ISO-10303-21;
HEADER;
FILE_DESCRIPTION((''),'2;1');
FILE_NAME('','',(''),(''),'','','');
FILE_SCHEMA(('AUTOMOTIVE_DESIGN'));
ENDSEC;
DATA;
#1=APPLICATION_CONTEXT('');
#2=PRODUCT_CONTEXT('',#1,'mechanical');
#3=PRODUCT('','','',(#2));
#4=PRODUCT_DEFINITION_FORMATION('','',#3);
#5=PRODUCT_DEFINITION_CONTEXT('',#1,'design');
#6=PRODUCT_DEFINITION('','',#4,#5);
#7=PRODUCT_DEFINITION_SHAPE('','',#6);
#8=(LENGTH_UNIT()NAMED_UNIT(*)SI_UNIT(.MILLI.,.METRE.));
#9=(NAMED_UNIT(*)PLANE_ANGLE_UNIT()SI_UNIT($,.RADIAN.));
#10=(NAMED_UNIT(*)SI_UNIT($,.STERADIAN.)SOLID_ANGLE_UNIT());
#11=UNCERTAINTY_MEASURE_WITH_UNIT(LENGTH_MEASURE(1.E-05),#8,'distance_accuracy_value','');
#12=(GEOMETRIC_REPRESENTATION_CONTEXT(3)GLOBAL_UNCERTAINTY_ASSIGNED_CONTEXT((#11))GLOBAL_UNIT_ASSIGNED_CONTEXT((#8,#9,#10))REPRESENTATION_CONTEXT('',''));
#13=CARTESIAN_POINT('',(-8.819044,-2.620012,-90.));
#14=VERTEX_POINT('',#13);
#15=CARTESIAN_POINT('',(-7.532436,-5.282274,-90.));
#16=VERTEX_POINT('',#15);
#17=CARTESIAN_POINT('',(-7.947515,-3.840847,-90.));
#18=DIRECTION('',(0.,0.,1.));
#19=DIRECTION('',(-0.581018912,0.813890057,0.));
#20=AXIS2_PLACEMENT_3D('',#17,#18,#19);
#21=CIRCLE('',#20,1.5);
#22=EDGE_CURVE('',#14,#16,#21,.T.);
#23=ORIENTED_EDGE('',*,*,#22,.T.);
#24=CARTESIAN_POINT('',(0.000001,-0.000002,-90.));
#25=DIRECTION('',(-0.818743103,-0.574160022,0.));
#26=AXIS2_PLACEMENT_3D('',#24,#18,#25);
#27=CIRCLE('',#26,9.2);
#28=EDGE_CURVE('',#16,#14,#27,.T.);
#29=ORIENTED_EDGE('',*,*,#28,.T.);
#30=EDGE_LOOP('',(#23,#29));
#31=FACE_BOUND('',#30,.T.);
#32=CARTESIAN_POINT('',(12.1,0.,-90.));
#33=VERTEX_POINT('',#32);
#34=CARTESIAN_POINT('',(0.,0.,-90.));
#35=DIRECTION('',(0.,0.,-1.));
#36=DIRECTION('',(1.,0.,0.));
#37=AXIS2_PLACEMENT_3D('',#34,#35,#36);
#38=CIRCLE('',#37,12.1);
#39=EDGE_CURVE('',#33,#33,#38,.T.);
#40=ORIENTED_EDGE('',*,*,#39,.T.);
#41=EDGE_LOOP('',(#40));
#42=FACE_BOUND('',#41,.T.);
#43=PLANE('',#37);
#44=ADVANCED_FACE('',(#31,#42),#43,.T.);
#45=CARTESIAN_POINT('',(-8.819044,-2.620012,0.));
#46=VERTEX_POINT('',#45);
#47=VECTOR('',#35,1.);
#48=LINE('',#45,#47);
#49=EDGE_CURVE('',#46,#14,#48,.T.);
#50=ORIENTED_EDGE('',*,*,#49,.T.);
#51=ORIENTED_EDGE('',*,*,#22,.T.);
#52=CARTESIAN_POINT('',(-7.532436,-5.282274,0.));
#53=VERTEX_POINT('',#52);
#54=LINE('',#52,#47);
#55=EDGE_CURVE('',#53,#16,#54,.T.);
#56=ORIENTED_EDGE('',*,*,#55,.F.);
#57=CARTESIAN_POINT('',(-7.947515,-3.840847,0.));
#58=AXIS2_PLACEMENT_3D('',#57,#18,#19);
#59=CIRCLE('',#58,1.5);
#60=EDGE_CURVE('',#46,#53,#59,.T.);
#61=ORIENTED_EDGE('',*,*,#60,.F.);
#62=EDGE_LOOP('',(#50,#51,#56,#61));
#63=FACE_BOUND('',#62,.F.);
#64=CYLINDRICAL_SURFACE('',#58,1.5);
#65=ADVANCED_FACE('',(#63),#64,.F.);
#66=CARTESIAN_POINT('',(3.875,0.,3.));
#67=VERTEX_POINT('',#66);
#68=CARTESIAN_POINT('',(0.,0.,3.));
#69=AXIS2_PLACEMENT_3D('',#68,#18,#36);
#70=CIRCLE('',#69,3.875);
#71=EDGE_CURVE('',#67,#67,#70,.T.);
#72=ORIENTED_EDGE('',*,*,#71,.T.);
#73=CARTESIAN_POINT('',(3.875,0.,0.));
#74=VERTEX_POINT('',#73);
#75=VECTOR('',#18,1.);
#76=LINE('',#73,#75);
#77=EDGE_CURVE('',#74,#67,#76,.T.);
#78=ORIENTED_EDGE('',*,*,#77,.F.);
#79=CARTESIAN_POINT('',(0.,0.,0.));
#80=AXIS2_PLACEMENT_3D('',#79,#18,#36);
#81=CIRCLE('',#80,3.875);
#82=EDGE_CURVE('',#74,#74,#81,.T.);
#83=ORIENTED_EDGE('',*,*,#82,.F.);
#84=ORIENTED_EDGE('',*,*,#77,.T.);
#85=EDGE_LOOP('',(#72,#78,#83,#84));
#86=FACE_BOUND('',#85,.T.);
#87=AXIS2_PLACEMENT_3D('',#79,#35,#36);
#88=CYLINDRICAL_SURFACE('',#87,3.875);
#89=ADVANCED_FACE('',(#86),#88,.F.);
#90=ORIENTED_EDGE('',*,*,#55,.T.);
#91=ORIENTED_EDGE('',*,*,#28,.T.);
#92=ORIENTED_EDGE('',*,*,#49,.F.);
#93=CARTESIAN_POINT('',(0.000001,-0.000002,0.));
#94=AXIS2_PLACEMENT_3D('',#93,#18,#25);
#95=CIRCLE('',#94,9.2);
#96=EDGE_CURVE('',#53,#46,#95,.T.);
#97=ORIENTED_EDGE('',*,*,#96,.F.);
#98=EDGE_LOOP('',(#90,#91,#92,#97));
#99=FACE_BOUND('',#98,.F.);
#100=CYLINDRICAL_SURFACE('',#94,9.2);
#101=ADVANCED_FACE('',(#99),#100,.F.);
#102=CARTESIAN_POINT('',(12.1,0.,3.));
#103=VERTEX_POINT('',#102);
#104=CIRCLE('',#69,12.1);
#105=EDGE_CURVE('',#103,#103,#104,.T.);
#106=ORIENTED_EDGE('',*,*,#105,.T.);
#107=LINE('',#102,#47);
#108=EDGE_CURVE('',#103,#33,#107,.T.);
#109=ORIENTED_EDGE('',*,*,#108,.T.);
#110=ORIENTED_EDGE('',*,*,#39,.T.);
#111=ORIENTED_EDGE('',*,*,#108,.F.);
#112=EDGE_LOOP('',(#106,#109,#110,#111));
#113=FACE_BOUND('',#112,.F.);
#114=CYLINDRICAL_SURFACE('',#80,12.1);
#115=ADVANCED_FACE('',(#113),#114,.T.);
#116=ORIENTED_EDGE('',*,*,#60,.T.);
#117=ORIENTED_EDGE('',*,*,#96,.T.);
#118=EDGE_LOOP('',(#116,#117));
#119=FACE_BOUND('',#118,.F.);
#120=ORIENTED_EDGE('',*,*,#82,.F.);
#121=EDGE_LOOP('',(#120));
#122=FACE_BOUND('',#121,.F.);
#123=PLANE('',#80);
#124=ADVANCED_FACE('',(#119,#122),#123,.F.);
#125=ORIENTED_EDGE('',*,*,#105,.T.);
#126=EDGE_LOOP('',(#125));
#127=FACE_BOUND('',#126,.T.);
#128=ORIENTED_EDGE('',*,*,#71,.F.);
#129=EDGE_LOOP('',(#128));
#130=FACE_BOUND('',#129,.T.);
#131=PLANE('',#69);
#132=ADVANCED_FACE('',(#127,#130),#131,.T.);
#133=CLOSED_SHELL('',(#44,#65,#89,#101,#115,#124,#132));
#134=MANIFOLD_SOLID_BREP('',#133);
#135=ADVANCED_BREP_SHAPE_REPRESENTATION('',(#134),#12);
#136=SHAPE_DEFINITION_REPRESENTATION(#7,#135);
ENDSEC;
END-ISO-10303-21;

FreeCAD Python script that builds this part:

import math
import FreeCAD as App
import Part
import Sketcher

V = App.Vector

doc = App.newDocument("Part")
params = doc.addObject("Spreadsheet::Sheet", "Params")
for row, (alias, value) in enumerate([
    ("sketch1_diameter", "24.2 mm"),
    ("sketch1_diameter2", "7.75 mm"),
    ("pad1_length", "3 mm"),
    ("sketch2_diameter", "24.2 mm"),
    ("sketch2_radius", "9.2 mm"),
    ("sketch2_radius2", "1.5 mm"),
    ("pad2_length", "90 mm"),
], start=1):
    params.set(f"A{row}", alias)
    params.set(f"B{row}", "=" + value)
    params.setAlias(f"B{row}", alias)

body = doc.addObject("PartDesign::Body", "Body")

# Sketch on XY plane
sketch1 = body.newObject("Sketcher::SketchObject", "Sketch")
sketch1.AttachmentSupport = (doc.getObject("XY_Plane"), [""])
sketch1.MapMode = "FlatFace"
sketch1.addGeometry([
    Part.Circle(V(0, 0, 0), V(0, 0, 1), 12.1),
    Part.Circle(V(0, 0, 0), V(0, 0, 1), 3.9),
], False)
sketch1.addConstraint([
    Sketcher.Constraint("Coincident", 0, 3, -1, 1),
    Sketcher.Constraint("Coincident", 1, 3, -1, 1),
    Sketcher.Constraint("Diameter", 0, 24.2),
    Sketcher.Constraint("Diameter", 1, 7.75),
])
sketch1.setExpression("Constraints[2]", "Params.sketch1_diameter")
sketch1.setExpression("Constraints[3]", "Params.sketch1_diameter2")
pad1 = body.newObject("PartDesign::Pad", "Pad")
pad1.Profile = sketch1
pad1.setExpression("Length", "Params.pad1_length")

# Sketch on XY plane
sketch2 = body.newObject("Sketcher::SketchObject", "Sketch001")
sketch2.AttachmentSupport = (doc.getObject("XY_Plane"), [""])
sketch2.MapMode = "FlatFace"
sketch2.addGeometry([
    Part.Circle(V(0, 0, 0), V(0, 0, 1), 12.1),
    Part.ArcOfCircle(Part.Circle(V(0, 0, 0), V(0, 0, 1), 9.2), math.radians(-145), math.radians(197)),
    Part.ArcOfCircle(Part.Circle(V(-7.9, -3.8, 0), V(0, 0, 1), 1.5), math.radians(126), math.radians(286)),
], False)
sketch2.addConstraint([
    Sketcher.Constraint("Coincident", 1, 1, 2, 2),
    Sketcher.Constraint("Coincident", 2, 1, 1, 2),
    Sketcher.Constraint("Coincident", 0, 3, -1, 1),
    Sketcher.Constraint("Coincident", 1, 3, -1, 1),
    Sketcher.Constraint("Diameter", 0, 24.2),
    Sketcher.Constraint("Radius", 1, 9.2),
    Sketcher.Constraint("Radius", 2, 1.5),
    Sketcher.Constraint("DistanceY", 2, 1, -1, 1, 2.620012),
    Sketcher.Constraint("DistanceX", 2, 3, 1, 1, 0.415079),
])
sketch2.setExpression("Constraints[4]", "Params.sketch2_diameter")
sketch2.setExpression("Constraints[5]", "Params.sketch2_radius")
sketch2.setExpression("Constraints[6]", "Params.sketch2_radius2")
pad2 = body.newObject("PartDesign::Pad", "Pad001")
pad2.Profile = sketch2
pad2.setExpression("Length", "Params.pad2_length")
pad2.Reversed = True

doc.recompute()
